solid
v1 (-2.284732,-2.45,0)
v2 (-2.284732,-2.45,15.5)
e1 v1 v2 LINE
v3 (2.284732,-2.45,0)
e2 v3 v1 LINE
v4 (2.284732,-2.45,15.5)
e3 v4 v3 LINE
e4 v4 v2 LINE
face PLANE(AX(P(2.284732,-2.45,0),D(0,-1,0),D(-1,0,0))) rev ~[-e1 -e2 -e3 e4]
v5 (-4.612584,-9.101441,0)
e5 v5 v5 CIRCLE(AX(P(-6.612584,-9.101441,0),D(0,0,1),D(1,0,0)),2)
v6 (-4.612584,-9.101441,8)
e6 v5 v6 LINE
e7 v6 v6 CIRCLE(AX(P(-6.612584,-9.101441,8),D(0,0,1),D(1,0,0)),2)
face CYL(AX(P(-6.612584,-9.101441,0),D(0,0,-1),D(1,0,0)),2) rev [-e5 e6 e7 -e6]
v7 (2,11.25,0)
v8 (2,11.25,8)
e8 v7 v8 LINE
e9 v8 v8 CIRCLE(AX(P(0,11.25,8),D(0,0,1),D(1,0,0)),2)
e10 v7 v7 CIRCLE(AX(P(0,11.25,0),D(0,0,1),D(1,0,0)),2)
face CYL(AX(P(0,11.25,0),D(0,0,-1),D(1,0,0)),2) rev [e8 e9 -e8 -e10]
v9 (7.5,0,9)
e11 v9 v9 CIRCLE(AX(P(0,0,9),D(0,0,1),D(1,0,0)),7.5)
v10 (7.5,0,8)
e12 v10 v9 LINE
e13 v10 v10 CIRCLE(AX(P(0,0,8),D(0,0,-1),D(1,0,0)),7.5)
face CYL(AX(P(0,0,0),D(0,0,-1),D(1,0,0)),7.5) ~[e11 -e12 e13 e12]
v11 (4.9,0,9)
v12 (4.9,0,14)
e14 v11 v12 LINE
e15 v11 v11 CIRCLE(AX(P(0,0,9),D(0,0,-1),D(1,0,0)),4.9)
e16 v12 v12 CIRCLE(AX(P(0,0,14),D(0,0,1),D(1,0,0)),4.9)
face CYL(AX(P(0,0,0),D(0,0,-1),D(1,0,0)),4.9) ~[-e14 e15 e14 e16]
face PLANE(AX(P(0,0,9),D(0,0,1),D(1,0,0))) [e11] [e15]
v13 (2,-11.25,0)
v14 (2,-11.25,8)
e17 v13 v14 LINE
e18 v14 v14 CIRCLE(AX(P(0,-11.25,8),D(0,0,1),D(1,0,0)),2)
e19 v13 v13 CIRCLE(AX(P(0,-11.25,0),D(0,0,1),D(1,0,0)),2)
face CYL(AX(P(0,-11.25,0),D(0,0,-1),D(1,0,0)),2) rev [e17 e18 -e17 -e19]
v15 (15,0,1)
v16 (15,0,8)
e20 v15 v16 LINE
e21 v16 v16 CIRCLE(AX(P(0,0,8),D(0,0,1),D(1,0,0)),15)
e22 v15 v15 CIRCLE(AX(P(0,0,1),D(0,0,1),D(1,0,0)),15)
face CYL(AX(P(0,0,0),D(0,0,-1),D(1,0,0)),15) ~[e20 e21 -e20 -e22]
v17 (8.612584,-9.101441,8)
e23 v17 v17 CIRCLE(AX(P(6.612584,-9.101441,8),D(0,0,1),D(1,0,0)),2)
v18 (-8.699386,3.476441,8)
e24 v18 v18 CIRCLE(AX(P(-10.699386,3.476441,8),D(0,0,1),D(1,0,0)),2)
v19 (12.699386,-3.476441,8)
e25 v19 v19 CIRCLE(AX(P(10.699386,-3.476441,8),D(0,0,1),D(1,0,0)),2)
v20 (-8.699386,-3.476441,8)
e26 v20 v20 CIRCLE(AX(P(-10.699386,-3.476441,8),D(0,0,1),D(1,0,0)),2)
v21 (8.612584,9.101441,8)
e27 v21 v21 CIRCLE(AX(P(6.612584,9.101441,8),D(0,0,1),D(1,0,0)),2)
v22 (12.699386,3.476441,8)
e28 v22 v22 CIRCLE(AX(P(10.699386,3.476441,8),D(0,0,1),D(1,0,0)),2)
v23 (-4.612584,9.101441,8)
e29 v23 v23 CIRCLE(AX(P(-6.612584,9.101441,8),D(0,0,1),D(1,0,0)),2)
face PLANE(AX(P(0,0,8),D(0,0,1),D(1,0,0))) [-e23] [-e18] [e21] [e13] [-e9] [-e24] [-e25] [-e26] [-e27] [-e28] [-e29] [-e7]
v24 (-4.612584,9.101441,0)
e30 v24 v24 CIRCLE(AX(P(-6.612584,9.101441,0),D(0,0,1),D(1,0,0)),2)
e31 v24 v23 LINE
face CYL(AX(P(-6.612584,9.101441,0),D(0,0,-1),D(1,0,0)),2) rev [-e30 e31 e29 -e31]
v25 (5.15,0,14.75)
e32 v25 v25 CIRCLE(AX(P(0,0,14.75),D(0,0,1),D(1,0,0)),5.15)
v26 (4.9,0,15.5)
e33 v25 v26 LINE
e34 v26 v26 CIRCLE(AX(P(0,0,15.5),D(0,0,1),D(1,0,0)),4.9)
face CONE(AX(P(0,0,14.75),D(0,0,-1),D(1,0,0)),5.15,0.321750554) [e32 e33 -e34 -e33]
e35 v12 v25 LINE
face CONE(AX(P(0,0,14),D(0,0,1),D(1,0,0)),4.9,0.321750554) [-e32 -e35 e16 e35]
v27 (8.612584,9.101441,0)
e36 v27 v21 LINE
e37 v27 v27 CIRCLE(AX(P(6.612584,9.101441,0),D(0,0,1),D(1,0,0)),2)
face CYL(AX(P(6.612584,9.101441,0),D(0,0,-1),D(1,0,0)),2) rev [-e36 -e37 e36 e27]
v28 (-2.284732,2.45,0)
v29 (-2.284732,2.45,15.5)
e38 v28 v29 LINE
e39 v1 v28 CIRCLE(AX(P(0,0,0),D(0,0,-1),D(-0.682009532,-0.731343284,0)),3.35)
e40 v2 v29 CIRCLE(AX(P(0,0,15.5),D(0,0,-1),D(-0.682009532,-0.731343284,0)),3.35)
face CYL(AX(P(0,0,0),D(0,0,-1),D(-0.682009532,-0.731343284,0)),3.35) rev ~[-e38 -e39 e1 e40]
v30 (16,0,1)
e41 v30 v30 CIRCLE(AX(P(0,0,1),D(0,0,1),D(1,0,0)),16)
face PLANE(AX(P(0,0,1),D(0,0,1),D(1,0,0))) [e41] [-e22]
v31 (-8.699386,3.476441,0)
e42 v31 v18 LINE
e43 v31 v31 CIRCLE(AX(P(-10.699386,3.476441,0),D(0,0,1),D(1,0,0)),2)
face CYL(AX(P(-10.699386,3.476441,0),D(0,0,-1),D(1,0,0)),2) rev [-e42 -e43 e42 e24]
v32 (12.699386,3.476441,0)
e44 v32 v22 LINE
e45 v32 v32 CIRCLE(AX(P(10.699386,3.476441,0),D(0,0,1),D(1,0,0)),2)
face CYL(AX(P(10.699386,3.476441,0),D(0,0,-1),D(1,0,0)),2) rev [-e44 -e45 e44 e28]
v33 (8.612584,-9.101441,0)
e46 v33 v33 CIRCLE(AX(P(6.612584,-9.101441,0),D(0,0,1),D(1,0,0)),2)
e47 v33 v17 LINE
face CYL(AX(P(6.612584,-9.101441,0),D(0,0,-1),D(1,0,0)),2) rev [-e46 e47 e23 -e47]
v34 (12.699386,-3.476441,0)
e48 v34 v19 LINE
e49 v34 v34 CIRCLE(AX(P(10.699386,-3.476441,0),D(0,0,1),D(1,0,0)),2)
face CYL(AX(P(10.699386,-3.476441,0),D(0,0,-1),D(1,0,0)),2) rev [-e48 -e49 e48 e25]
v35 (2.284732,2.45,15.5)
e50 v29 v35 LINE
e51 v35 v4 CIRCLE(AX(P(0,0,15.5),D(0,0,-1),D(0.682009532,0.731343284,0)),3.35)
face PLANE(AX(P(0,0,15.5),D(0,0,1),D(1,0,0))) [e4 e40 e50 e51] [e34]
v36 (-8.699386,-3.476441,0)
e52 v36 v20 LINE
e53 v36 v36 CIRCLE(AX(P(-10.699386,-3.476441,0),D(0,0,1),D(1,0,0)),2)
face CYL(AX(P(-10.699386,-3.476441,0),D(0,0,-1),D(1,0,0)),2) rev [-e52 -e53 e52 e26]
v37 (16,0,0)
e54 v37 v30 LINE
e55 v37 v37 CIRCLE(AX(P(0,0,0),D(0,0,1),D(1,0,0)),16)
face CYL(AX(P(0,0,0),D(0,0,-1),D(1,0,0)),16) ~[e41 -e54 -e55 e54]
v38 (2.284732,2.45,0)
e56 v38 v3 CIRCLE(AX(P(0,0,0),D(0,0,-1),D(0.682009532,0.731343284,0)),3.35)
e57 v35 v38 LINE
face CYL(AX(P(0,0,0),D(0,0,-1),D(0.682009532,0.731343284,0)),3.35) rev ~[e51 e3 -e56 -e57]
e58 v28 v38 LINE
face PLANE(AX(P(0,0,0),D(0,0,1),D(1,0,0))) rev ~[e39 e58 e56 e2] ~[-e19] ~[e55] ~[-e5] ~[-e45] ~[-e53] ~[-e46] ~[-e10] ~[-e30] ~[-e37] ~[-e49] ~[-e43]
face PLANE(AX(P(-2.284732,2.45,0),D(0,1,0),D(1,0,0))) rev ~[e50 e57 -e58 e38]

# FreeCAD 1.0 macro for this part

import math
import FreeCAD as App
import Part
import Sketcher

V = App.Vector


def add_polygon(sketch, points):
    """Adds a closed chain of lines whose ends are joined by coincident constraints."""
    first, n = sketch.GeometryCount, len(points)
    for a, b in zip(points, points[1:] + points[:1]):
        sketch.addGeometry(Part.LineSegment(App.Vector(*a, 0), App.Vector(*b, 0)), False)
    for i in range(n):
        sketch.addConstraint(Sketcher.Constraint("Coincident", first + i, 2, first + (i + 1) % n, 1))

doc = App.newDocument("Part")
body = doc.addObject("PartDesign::Body", "Body")

sketch1 = doc.addObject("Sketcher::SketchObject", "Sketch")
body.addObject(sketch1)
sketch1.AttachmentSupport = (doc.XY_Plane, [""])
sketch1.MapMode = "FlatFace"
sketch1.addGeometry([
    Part.Circle(V(0, 0, 0), V(0, 0, 1), 15),
    Part.Circle(V(-6.6, -9.1, 0), V(0, 0, 1), 2),
    Part.Circle(V(-10.7, -3.5, 0), V(0, 0, 1), 2),
    Part.Circle(V(0, -11.2, 0), V(0, 0, 1), 2),
    Part.Circle(V(6.6, -9.1, 0), V(0, 0, 1), 2),
    Part.Circle(V(10.7, -3.5, 0), V(0, 0, 1), 2),
    Part.Circle(V(-10.7, 3.5, 0), V(0, 0, 1), 2),
    Part.Circle(V(-6.6, 9.1, 0), V(0, 0, 1), 2),
    Part.LineSegment(V(2.3, -2.5, 0), V(-2.3, -2.5, 0)),
    Part.ArcOfCircle(Part.Circle(V(0, 0, 0), V(0, 0, 1), 3.4), math.radians(133), math.radians(227)),
    Part.LineSegment(V(-2.3, 2.5, 0), V(2.3, 2.5, 0)),
    Part.ArcOfCircle(Part.Circle(V(0, 0, 0), V(0, 0, 1), 3.4), math.radians(-47), math.radians(47)),
    Part.Circle(V(10.7, 3.5, 0), V(0, 0, 1), 2),
    Part.Circle(V(0, 11.2, 0), V(0, 0, 1), 2),
    Part.Circle(V(6.6, 9.1, 0), V(0, 0, 1), 2),
], False)
sketch1.addConstraint([
    Sketcher.Constraint("Coincident", 8, 2, 9, 2),
    Sketcher.Constraint("Coincident", 9, 1, 10, 1),
    Sketcher.Constraint("Coincident", 10, 2, 11, 2),
    Sketcher.Constraint("Coincident", 11, 1, 8, 1),
    Sketcher.Constraint("Horizontal", 8),
    Sketcher.Constraint("Horizontal", 10),
    Sketcher.Constraint("Coincident", 0, 3, -1, 1),
    Sketcher.Constraint("Coincident", 9, 3, -1, 1),
    Sketcher.Constraint("Coincident", 11, 3, -1, 1),
    Sketcher.Constraint("Equal", 1, 2),
    Sketcher.Constraint("Equal", 2, 3),
    Sketcher.Constraint("Equal", 3, 4),
    Sketcher.Constraint("Equal", 4, 5),
    Sketcher.Constraint("Equal", 5, 6),
    Sketcher.Constraint("Equal", 6, 7),
    Sketcher.Constraint("Equal", 9, 11),
    Sketcher.Constraint("Equal", 7, 12),
    Sketcher.Constraint("Equal", 12, 13),
    Sketcher.Constraint("Equal", 13, 14),
    Sketcher.Constraint("Symmetric", 5, 3, 6, 3, -1, 1),
    Sketcher.Constraint("Symmetric", 4, 3, 7, 3, -1, 1),
    Sketcher.Constraint("Symmetric", 2, 3, 12, 3, -1, 1),
    Sketcher.Constraint("Symmetric", 3, 3, 13, 3, -1, 1),
    Sketcher.Constraint("Symmetric", 1, 3, 14, 3, -1, 1),
    Sketcher.Constraint("Symmetric", 1, 3, 4, 3, -2),
    Sketcher.Constraint("Symmetric", 2, 3, 5, 3, -2),
    Sketcher.Constraint("PointOnObject", 3, 3, -2),
    Sketcher.Constraint("Vertical", 8, 2, 9, 1),
    Sketcher.Constraint("Diameter", 0, 30.0),
    Sketcher.Constraint("Diameter", 1, 4.0),
    Sketcher.Constraint("Radius", 9, 3.35),
    Sketcher.Constraint("DistanceY", 8, 2, 9, 1, 4.9),
    Sketcher.Constraint("DistanceY", 3, 3, -1, 1, 11.25),
    Sketcher.Constraint("DistanceY", 1, 3, 2, 3, 5.625),
    Sketcher.Constraint("DistanceX", 2, 3, 1, 3, 4.086802),
    Sketcher.Constraint("DistanceY", 1, 3, -1, 1, 9.101441),
    Sketcher.Constraint("DistanceX", 1, 3, 4, 3, 13.225168),
])
pad1 = doc.addObject("PartDesign::Pad", "Pad")
body.addObject(pad1)
pad1.Profile = sketch1
pad1.Length = 8

sketch2 = doc.addObject("Sketcher::SketchObject", "Sketch001")
body.addObject(sketch2)
sketch2.AttachmentSupport = (doc.XY_Plane, [""])
sketch2.MapMode = "FlatFace"
sketch2.addGeometry([
    Part.Circle(V(0, 0, 0), V(0, 0, 1), 7.5),
    Part.LineSegment(V(2.3, -2.5, 0), V(-2.3, -2.5, 0)),
    Part.ArcOfCircle(Part.Circle(V(0, 0, 0), V(0, 0, 1), 3.4), math.radians(133), math.radians(227)),
    Part.LineSegment(V(-2.3, 2.5, 0), V(2.3, 2.5, 0)),
    Part.ArcOfCircle(Part.Circle(V(0, 0, 0), V(0, 0, 1), 3.4), math.radians(-47), math.radians(47)),
], False)
sketch2.addConstraint([
    Sketcher.Constraint("Coincident", 1, 2, 2, 2),
    Sketcher.Constraint("Coincident", 2, 1, 3, 1),
    Sketcher.Constraint("Coincident", 3, 2, 4, 2),
    Sketcher.Constraint("Coincident", 4, 1, 1, 1),
    Sketcher.Constraint("Horizontal", 1),
    Sketcher.Constraint("Horizontal", 3),
    Sketcher.Constraint("Coincident", 0, 3, -1, 1),
    Sketcher.Constraint("Coincident", 2, 3, -1, 1),
    Sketcher.Constraint("Coincident", 4, 3, -1, 1),
    Sketcher.Constraint("Equal", 2, 4),
    Sketcher.Constraint("Vertical", 1, 2, 2, 1),
    Sketcher.Constraint("Diameter", 0, 15.0),
    Sketcher.Constraint("Radius", 2, 3.35),
    Sketcher.Constraint("DistanceY", 1, 2, 2, 1, 4.9),
])
pad2 = doc.addObject("PartDesign::Pad", "Pad001")
body.addObject(pad2)
pad2.Profile = sketch2
pad2.Length = 9

sketch3 = doc.addObject("Sketcher::SketchObject", "Sketch002")
body.addObject(sketch3)
sketch3.AttachmentSupport = (doc.XY_Plane, [""])
sketch3.MapMode = "FlatFace"
sketch3.addGeometry([
    Part.Circle(V(0, 0, 0), V(0, 0, 1), 4.9),
    Part.LineSegment(V(2.3, -2.5, 0), V(-2.3, -2.5, 0)),
    Part.ArcOfCircle(Part.Circle(V(0, 0, 0), V(0, 0, 1), 3.4), math.radians(133), math.radians(227)),
    Part.LineSegment(V(-2.3, 2.5, 0), V(2.3, 2.5, 0)),
    Part.ArcOfCircle(Part.Circle(V(0, 0, 0), V(0, 0, 1), 3.4), math.radians(-47), math.radians(47)),
], False)
sketch3.addConstraint([
    Sketcher.Constraint("Coincident", 1, 2, 2, 2),
    Sketcher.Constraint("Coincident", 2, 1, 3, 1),
    Sketcher.Constraint("Coincident", 3, 2, 4, 2),
    Sketcher.Constraint("Coincident", 4, 1, 1, 1),
    Sketcher.Constraint("Horizontal", 1),
    Sketcher.Constraint("Horizontal", 3),
    Sketcher.Constraint("Coincident", 0, 3, -1, 1),
    Sketcher.Constraint("Coincident", 2, 3, -1, 1),
    Sketcher.Constraint("Coincident", 4, 3, -1, 1),
    Sketcher.Constraint("Equal", 2, 4),
    Sketcher.Constraint("Vertical", 1, 2, 2, 1),
    Sketcher.Constraint("Diameter", 0, 9.8),
    Sketcher.Constraint("Radius", 2, 3.35),
    Sketcher.Constraint("DistanceY", 1, 2, 2, 1, 4.9),
])
pad3 = doc.addObject("PartDesign::Pad", "Pad002")
body.addObject(pad3)
pad3.Profile = sketch3
pad3.Length = 15.5

sketch4 = doc.addObject("Sketcher::SketchObject", "Sketch003")
body.addObject(sketch4)
sketch4.AttachmentSupport = (doc.XZ_Plane, [""])
sketch4.MapMode = "FlatFace"
add_polygon(sketch4, [(5.2, 14.8), (4.9, 15.5), (4.9, 14)])
sketch4.addConstraint([
    Sketcher.Constraint("Vertical", 1),
    Sketcher.Constraint("Equal", 0, 2),
    Sketcher.Constraint("DistanceY", 1, 2, 1, 1, 1.5),
    Sketcher.Constraint("DistanceY", -1, 1, 1, 2, 14.0),
    Sketcher.Constraint("DistanceX", -1, 1, 0, 2, 4.9),
    Sketcher.Constraint("DistanceX", -1, 1, 2, 2, 5.15),
])
revolution = doc.addObject("PartDesign::Revolution", "Revolution")
body.addObject(revolution)
revolution.Profile = sketch4
revolution.ReferenceAxis = (sketch4, ["V_Axis"])
revolution.Angle = 360

sketch5 = doc.addObject("Sketcher::SketchObject", "Sketch004")
body.addObject(sketch5)
sketch5.AttachmentSupport = (doc.XY_Plane, [""])
sketch5.MapMode = "FlatFace"
sketch5.addGeometry([
    Part.Circle(V(0, 0, 0), V(0, 0, 1), 16),
    Part.Circle(V(0, 0, 0), V(0, 0, 1), 15),
], False)
sketch5.addConstraint([
    Sketcher.Constraint("Coincident", 0, 3, -1, 1),
    Sketcher.Constraint("Coincident", 1, 3, -1, 1),
    Sketcher.Constraint("Diameter", 0, 32.0),
    Sketcher.Constraint("Diameter", 1, 30.0),
])
pad4 = doc.addObject("PartDesign::Pad", "Pad003")
body.addObject(pad4)
pad4.Profile = sketch5
pad4.Length = 1

doc.recompute()
